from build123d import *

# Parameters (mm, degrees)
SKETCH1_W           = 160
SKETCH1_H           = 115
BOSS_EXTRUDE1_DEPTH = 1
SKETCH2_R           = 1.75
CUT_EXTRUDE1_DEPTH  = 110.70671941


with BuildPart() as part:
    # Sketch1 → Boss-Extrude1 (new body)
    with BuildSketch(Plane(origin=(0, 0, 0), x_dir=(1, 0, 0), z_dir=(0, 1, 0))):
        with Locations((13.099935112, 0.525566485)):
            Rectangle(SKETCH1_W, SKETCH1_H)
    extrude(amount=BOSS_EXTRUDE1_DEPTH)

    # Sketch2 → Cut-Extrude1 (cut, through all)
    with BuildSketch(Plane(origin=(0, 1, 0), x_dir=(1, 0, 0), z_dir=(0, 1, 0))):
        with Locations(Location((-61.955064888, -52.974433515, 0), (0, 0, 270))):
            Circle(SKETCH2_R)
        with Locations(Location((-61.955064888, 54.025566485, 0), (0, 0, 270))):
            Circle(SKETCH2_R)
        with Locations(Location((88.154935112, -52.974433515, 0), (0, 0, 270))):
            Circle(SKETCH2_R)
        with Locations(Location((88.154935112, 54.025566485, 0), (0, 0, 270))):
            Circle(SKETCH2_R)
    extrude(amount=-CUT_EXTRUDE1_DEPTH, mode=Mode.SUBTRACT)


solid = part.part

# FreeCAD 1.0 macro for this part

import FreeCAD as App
import Part
import Sketcher
from FreeCAD import Vector
Q = App.Units.Quantity

doc = App.newDocument("Part")
body = doc.addObject("PartDesign::Body", "Body")

# Sketch on XZ plane
sketch1 = body.newObject("Sketcher::SketchObject", "Sketch")
sketch1.AttachmentSupport = (doc.getObject("XZ_Plane"), [""])
sketch1.MapMode = "FlatFace"
sketch1.addGeometry([
    Part.LineSegment(Vector(-67, -58, 0), Vector(-67, 57, 0)),
    Part.LineSegment(Vector(-67, 57, 0), Vector(93, 57, 0)),
    Part.LineSegment(Vector(93, 57, 0), Vector(93, -58, 0)),
    Part.LineSegment(Vector(93, -58, 0), Vector(-67, -58, 0)),
], False)
sketch1.addConstraint([
    Sketcher.Constraint("Coincident", 0, 2, 1, 1),
    Sketcher.Constraint("Coincident", 1, 2, 2, 1),
    Sketcher.Constraint("Coincident", 2, 2, 3, 1),
    Sketcher.Constraint("Coincident", 3, 2, 0, 1),
    Sketcher.Constraint("Vertical", 0),
    Sketcher.Constraint("Horizontal", 1),
    Sketcher.Constraint("Vertical", 2),
    Sketcher.Constraint("Horizontal", 3),
    Sketcher.Constraint("DistanceX", 1, 1, 1, 2, Q("160 mm")),
    Sketcher.Constraint("DistanceY", 0, 1, 0, 2, Q("115 mm")),
    Sketcher.Constraint("DistanceX", 0, 2, -1, 1, Q("66.900065 mm")),
    Sketcher.Constraint("DistanceY", -1, 1, 0, 2, Q("56.974434 mm")),
])
pad1 = body.newObject("PartDesign::Pad", "Pad")
pad1.Profile = sketch1
pad1.Length = 1
pad1.Reversed = True

# Sketch on XZ plane
sketch2 = body.newObject("Sketcher::SketchObject", "Sketch001")
sketch2.AttachmentSupport = (doc.getObject("XZ_Plane"), [""])
sketch2.MapMode = "FlatFace"
sketch2.AttachmentOffset = App.Placement(Vector(0, 0, -1), App.Rotation())
sketch2.addGeometry([
    Part.Circle(Vector(-62, 53, 0), Vector(0, 0, 1), 1.8),
    Part.Circle(Vector(-62, -54, 0), Vector(0, 0, 1), 1.8),
    Part.Circle(Vector(88.2, 53, 0), Vector(0, 0, 1), 1.8),
    Part.Circle(Vector(88.2, -54, 0), Vector(0, 0, 1), 1.8),
], False)
sketch2.addConstraint([
    Sketcher.Constraint("Equal", 0, 1),
    Sketcher.Constraint("Equal", 1, 2),
    Sketcher.Constraint("Equal", 2, 3),
    Sketcher.Constraint("Horizontal", 0, 3, 2, 3),
    Sketcher.Constraint("Horizontal", 1, 3, 3, 3),
    Sketcher.Constraint("Vertical", 0, 3, 1, 3),
    Sketcher.Constraint("Vertical", 2, 3, 3, 3),
    Sketcher.Constraint("Diameter", 0, Q("3.5 mm")),
    Sketcher.Constraint("DistanceY", 1, 3, 0, 3, Q("107 mm")),
    Sketcher.Constraint("DistanceX", 0, 3, 2, 3, Q("150.11 mm")),
    Sketcher.Constraint("DistanceX", 0, 3, -1, 1, Q("61.955065 mm")),
    Sketcher.Constraint("DistanceY", -1, 1, 0, 3, Q("52.974434 mm")),
])
pocket1 = body.newObject("PartDesign::Pocket", "Pocket")
pocket1.Profile = sketch2
pocket1.Type = "ThroughAll"
pocket1.Reversed = True

doc.recompute()
